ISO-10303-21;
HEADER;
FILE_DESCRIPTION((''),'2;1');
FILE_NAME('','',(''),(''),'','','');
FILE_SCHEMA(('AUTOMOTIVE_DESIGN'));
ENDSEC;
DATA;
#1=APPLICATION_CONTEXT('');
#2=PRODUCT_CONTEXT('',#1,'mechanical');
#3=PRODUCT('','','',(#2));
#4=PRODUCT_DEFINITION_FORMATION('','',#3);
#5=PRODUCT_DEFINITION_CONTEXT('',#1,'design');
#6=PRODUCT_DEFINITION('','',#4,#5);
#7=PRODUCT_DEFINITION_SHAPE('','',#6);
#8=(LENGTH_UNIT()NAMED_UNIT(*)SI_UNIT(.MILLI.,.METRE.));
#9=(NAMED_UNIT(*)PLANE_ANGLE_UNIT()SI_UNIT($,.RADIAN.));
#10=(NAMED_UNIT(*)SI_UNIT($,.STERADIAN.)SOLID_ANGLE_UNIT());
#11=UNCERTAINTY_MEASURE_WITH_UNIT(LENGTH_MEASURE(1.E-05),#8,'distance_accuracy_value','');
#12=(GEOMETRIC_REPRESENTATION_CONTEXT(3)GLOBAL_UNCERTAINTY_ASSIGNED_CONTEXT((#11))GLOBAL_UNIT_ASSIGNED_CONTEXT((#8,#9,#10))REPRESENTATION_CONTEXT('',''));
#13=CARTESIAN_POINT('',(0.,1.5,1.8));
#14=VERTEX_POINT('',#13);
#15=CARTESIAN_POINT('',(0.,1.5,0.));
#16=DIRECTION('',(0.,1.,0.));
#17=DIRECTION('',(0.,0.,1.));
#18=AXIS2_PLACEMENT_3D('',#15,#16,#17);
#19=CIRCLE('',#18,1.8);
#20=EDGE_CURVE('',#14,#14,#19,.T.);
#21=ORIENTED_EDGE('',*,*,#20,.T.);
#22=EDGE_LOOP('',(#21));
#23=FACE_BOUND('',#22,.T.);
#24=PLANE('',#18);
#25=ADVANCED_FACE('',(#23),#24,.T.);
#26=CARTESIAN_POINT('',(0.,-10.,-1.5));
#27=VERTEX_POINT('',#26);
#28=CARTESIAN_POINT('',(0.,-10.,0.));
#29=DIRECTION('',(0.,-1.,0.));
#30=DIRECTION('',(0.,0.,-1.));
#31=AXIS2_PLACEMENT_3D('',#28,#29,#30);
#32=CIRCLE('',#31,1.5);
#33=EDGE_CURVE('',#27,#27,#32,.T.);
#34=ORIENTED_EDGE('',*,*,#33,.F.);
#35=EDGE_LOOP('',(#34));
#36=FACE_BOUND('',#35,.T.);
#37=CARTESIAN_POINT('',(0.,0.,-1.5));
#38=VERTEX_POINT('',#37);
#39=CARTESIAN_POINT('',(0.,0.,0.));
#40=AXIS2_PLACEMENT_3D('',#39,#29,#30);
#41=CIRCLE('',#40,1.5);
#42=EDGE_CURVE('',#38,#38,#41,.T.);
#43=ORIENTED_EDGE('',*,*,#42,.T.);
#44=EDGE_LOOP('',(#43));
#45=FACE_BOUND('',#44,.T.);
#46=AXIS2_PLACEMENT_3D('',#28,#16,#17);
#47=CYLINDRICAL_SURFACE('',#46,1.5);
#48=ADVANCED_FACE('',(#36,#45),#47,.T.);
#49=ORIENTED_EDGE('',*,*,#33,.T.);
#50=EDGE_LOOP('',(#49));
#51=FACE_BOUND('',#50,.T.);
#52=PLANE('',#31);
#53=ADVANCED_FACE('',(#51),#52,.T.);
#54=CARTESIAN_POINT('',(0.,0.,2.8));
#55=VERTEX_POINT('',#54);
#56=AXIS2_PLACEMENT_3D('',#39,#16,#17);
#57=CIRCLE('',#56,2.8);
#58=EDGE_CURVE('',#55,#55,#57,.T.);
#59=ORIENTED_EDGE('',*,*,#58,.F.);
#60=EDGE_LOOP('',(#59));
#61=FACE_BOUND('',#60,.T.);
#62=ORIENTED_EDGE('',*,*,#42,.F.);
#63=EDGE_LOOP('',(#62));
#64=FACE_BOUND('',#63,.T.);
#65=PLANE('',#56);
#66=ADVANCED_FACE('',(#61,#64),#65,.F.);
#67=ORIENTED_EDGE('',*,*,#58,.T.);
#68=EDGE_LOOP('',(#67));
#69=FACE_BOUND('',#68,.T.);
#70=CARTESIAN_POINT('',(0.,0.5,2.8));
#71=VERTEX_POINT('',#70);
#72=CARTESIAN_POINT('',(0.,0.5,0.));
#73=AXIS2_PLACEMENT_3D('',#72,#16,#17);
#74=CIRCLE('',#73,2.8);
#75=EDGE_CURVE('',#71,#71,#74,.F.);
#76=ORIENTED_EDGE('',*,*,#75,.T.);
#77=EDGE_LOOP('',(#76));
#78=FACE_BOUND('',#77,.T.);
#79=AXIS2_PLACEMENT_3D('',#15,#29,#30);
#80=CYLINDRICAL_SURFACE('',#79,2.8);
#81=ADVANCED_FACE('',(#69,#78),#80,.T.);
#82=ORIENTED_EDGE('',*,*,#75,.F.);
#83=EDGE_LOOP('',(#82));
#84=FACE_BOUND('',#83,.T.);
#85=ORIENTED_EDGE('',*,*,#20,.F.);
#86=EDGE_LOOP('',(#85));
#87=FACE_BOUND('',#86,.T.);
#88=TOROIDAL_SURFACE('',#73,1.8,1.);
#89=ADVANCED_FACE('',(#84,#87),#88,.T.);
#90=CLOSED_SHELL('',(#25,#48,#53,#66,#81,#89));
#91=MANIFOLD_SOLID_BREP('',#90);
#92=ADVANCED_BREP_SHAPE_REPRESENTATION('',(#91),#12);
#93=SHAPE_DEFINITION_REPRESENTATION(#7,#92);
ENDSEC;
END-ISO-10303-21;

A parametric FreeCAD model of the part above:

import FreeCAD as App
import Part
import Sketcher
from FreeCAD import Vector
Q = App.Units.Quantity


def edges_at(feature, points):
    """Names of the edges that pass closest to the given points."""
    edges = feature.Shape.Edges
    near = lambda p: min(range(len(edges)), key=lambda i: edges[i].distToShape(Part.Vertex(*p))[0])
    return sorted({f"Edge{near(p) + 1}" for p in points})

doc = App.newDocument("Part")
params = doc.addObject("Spreadsheet::Sheet", "Params")
for row, (alias, value) in enumerate([
    ("sketch1_diameter", "5.6 mm"),
    ("pad1_length", "1.5 mm"),
    ("fillet_radius", "1 mm"),
    ("sketch2_diameter", "3 mm"),
    ("pad2_length", "10 mm"),
], start=1):
    params.set(f"A{row}", alias)
    params.set(f"B{row}", "=" + value)
    params.setAlias(f"B{row}", alias)

body = doc.addObject("PartDesign::Body", "Body")

# Sketch on XZ plane
sketch1 = body.newObject("Sketcher::SketchObject", "Sketch")
sketch1.AttachmentSupport = (doc.getObject("XZ_Plane"), [""])
sketch1.MapMode = "FlatFace"
sketch1.addGeometry(Part.Circle(Vector(0, 0, 0), Vector(0, 0, 1), 2.8), False)
sketch1.addConstraint([
    Sketcher.Constraint("Coincident", 0, 3, -1, 1),
    Sketcher.Constraint("Diameter", 0, Q("5.6 mm")),
])
sketch1.setExpression("Constraints[1]", "Params.sketch1_diameter")
pad1 = body.newObject("PartDesign::Pad", "Pad")
pad1.Profile = sketch1
pad1.setExpression("Length", "Params.pad1_length")
pad1.Reversed = True
doc.recompute()

fillet = body.newObject("PartDesign::Fillet", "Fillet")
fillet.Base = (pad1, edges_at(pad1, [(0, 1.5, -2.8)]))
fillet.setExpression("Radius", "Params.fillet_radius")

# Sketch on XZ plane
sketch2 = body.newObject("Sketcher::SketchObject", "Sketch001")
sketch2.AttachmentSupport = (doc.getObject("XZ_Plane"), [""])
sketch2.MapMode = "FlatFace"
sketch2.addGeometry(Part.Circle(Vector(0, 0, 0), Vector(0, 0, 1), 1.5), False)
sketch2.addConstraint([
    Sketcher.Constraint("Coincident", 0, 3, -1, 1),
    Sketcher.Constraint("Diameter", 0, Q("3 mm")),
])
sketch2.setExpression("Constraints[1]", "Params.sketch2_diameter")
pad2 = body.newObject("PartDesign::Pad", "Pad001")
pad2.Profile = sketch2
pad2.setExpression("Length", "Params.pad2_length")

doc.recompute()
